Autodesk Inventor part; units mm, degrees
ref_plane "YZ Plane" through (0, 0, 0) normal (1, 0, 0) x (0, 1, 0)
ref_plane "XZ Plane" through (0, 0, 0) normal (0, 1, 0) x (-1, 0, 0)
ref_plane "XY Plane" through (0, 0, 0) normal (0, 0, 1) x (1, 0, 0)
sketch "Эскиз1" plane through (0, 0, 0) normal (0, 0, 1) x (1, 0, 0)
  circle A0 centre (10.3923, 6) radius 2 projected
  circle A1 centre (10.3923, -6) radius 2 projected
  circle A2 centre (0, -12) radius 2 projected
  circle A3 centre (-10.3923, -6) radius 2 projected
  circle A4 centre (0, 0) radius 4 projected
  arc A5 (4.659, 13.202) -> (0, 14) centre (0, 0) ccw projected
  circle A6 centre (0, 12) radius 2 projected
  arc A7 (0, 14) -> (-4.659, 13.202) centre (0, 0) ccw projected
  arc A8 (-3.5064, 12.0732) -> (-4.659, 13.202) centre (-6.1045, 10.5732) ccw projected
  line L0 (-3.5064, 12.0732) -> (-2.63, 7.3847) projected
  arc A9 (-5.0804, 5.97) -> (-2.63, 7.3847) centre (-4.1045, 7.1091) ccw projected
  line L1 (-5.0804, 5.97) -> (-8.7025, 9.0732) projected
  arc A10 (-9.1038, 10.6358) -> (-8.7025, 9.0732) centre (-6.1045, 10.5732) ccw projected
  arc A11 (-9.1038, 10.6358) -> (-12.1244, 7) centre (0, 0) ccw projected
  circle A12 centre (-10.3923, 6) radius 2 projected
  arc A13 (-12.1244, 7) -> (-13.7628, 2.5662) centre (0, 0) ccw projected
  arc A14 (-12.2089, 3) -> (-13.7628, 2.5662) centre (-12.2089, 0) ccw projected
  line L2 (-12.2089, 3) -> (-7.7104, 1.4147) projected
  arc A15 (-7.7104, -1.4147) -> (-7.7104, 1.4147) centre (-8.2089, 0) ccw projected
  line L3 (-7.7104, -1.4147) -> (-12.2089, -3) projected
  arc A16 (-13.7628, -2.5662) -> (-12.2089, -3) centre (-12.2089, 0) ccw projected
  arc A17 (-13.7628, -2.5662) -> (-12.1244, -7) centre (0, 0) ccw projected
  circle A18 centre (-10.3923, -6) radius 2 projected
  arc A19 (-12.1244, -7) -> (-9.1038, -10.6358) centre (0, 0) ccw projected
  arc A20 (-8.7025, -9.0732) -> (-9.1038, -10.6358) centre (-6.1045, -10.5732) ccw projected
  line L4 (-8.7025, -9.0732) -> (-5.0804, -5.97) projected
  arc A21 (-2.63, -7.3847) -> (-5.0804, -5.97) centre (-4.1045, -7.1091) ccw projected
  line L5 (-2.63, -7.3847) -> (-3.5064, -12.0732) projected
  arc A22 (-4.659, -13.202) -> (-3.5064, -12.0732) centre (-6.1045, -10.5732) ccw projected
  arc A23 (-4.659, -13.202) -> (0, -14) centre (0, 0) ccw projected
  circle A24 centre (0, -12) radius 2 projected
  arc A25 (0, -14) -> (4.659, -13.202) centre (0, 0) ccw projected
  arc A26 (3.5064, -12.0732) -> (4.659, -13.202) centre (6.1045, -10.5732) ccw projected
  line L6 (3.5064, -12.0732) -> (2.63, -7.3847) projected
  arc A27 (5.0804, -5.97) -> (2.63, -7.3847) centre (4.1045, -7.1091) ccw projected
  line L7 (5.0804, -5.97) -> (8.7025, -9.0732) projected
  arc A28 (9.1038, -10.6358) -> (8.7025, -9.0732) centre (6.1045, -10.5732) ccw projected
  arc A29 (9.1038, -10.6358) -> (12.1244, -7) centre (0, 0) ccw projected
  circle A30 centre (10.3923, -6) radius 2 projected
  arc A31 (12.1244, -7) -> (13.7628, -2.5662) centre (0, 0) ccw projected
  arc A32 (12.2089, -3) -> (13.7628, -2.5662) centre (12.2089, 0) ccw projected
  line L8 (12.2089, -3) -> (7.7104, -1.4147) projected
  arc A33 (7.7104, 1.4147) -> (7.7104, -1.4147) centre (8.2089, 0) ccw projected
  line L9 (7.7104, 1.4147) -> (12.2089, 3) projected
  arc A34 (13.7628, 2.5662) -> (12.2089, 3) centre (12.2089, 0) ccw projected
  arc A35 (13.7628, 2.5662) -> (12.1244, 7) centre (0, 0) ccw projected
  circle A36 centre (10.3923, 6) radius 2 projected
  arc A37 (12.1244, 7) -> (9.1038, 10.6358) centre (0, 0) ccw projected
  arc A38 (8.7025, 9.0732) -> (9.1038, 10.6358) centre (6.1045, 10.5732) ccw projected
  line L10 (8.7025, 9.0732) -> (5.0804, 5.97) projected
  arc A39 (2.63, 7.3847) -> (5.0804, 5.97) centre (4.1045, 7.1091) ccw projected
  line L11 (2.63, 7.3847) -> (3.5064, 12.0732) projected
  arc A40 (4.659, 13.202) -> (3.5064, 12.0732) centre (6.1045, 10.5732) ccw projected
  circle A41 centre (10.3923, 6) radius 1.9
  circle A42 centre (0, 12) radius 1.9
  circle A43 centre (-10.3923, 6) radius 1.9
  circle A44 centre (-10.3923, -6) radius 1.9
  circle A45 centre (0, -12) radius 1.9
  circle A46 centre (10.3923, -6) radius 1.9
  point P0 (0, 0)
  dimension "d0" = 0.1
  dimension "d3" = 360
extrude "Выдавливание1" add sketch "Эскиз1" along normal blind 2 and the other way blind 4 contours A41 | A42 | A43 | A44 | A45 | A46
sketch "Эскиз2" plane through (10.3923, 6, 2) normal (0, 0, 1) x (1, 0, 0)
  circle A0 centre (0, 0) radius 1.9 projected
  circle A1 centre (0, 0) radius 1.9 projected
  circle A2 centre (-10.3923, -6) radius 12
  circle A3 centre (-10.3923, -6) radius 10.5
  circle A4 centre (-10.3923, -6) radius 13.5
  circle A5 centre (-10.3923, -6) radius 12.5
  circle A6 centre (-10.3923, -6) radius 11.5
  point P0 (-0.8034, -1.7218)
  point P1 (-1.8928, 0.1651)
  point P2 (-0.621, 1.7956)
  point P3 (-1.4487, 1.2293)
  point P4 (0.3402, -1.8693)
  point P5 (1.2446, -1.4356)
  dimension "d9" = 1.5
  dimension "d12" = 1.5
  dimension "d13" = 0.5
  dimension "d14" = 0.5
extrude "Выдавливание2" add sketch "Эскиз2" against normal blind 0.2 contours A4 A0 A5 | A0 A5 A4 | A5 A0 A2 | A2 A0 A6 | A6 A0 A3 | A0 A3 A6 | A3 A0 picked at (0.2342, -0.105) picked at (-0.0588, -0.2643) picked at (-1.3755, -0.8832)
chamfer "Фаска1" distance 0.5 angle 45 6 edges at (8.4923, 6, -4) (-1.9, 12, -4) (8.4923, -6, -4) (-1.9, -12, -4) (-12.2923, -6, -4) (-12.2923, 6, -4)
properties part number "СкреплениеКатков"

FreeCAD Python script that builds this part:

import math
import FreeCAD as App
import Part
import Sketcher
from FreeCAD import Vector
Q = App.Units.Quantity


def edges_at(feature, points):
    """Names of the edges that pass closest to the given points."""
    edges = feature.Shape.Edges
    near = lambda p: min(range(len(edges)), key=lambda i: edges[i].distToShape(Part.Vertex(*p))[0])
    return sorted({f"Edge{near(p) + 1}" for p in points})

doc = App.newDocument("Part")
body = doc.addObject("PartDesign::Body", "Body")
body.AllowCompound = True

# Sketch on XY plane
sketch1 = body.newObject("Sketcher::SketchObject", "Sketch")
sketch1.AttachmentSupport = (doc.getObject("XY_Plane"), [""])
sketch1.MapMode = "FlatFace"
sketch1.addGeometry([
    Part.Circle(Vector(10.3923, 6, 0), Vector(0, 0, 1), 1.9),  # 0
    Part.Circle(Vector(0, 12, 0), Vector(0, 0, 1), 1.9),  # 1
    Part.Circle(Vector(-10.3923, 6, 0), Vector(0, 0, 1), 1.9),  # 2
    Part.Circle(Vector(-10.3923, -6, 0), Vector(0, 0, 1), 1.9),  # 3
    Part.Circle(Vector(0, -12, 0), Vector(0, 0, 1), 1.9),  # 4
    Part.Circle(Vector(10.3923, -6, 0), Vector(0, 0, 1), 1.9),  # 5
], False)
sketch1.addConstraint([
    Sketcher.Constraint("Equal", 0, 1),
    Sketcher.Constraint("Equal", 1, 2),
    Sketcher.Constraint("Equal", 2, 3),
    Sketcher.Constraint("Equal", 3, 4),
    Sketcher.Constraint("Equal", 4, 5),
    Sketcher.Constraint("Symmetric", 0, 3, 3, 3, -1, 1),
    Sketcher.Constraint("Symmetric", 1, 3, 4, 3, -1, 1),
    Sketcher.Constraint("Symmetric", 2, 3, 5, 3, -1, 1),
    Sketcher.Constraint("Symmetric", 0, 3, 2, 3, -2),
    Sketcher.Constraint("PointOnObject", 1, 3, -2),
    Sketcher.Constraint("Diameter", 0, Q("3.8 mm")),
    Sketcher.Constraint("DistanceY", -1, 1, 0, 3, Q("6 mm")),
    Sketcher.Constraint("DistanceY", -1, 1, 1, 3, Q("12 mm")),
    Sketcher.Constraint("DistanceX", -1, 1, 0, 3, Q("10.3923 mm")),
])
pad1 = body.newObject("PartDesign::Pad", "Pad")
pad1.Profile = sketch1
pad1.Type = "TwoLengths"
pad1.Length = 2
pad1.Length2 = 4

# Sketch on XY plane
sketch2 = body.newObject("Sketcher::SketchObject", "Sketch001")
sketch2.AttachmentSupport = (doc.getObject("XY_Plane"), [""])
sketch2.MapMode = "FlatFace"
sketch2.AttachmentOffset = App.Placement(Vector(0, 0, 2), App.Rotation())
sketch2.addGeometry([
    Part.Circle(Vector(0, 0, 0), Vector(0, 0, 1), 13.5),  # 0
    Part.ArcOfCircle(Part.Circle(Vector(10.3923, 6, 0), Vector(0, 0, 1), 1.9), math.radians(109.077808), math.radians(139.684479)),  # 1
    Part.ArcOfCircle(Part.Circle(Vector(0, 0, 0), Vector(0, 0, 1), 11.5), math.radians(38.949427), math.radians(381.050596)),  # 2
    Part.ArcOfCircle(Part.Circle(Vector(10.3923, 6, 0), Vector(0, 0, 1), 1.9), math.radians(-79.684456), math.radians(-49.077785)),  # 3
    Part.ArcOfCircle(Part.Circle(Vector(0, 0, 0), Vector(0, 0, 1), 12.5), math.radians(38.583279), math.radians(381.416745)),  # 4
    Part.ArcOfCircle(Part.Circle(Vector(10.3923, 6, 0), Vector(0, 0, 1), 1.9), math.radians(175.014427), math.radians(244.985597)),  # 5
    Part.ArcOfCircle(Part.Circle(Vector(0, 0, 0), Vector(0, 0, 1), 10.5), math.radians(35.955322), math.radians(384.044701)),  # 6
], False)
sketch2.addConstraint([
    Sketcher.Constraint("Coincident", 1, 2, 2, 1),
    Sketcher.Constraint("Coincident", 2, 2, 3, 1),
    Sketcher.Constraint("Coincident", 3, 2, 4, 2),
    Sketcher.Constraint("Coincident", 4, 1, 1, 1),
    Sketcher.Constraint("Coincident", 5, 1, 6, 1),
    Sketcher.Constraint("Coincident", 6, 2, 5, 2),
    Sketcher.Constraint("Coincident", 0, 3, -1, 1),
    Sketcher.Constraint("Coincident", 2, 3, -1, 1),
    Sketcher.Constraint("Coincident", 4, 3, -1, 1),
    Sketcher.Constraint("Coincident", 6, 3, -1, 1),
    Sketcher.Constraint("Coincident", 3, 3, 1, 3),
    Sketcher.Constraint("Coincident", 5, 3, 1, 3),
    Sketcher.Constraint("Equal", 1, 3),
    Sketcher.Constraint("Equal", 3, 5),
    Sketcher.Constraint("Diameter", 0, Q("27 mm")),
    Sketcher.Constraint("Radius", 1, Q("1.9 mm")),
    Sketcher.Constraint("Radius", 2, Q("11.5 mm")),
    Sketcher.Constraint("Radius", 4, Q("12.5 mm")),
    Sketcher.Constraint("Radius", 6, Q("10.5 mm")),
    Sketcher.Constraint("DistanceY", -1, 1, 1, 3, Q("6 mm")),
    Sketcher.Constraint("DistanceY", -1, 1, 5, 1, Q("6.165 mm")),
])
pad2 = body.newObject("PartDesign::Pad", "Pad001")
pad2.Profile = sketch2
pad2.Length = 0.2
pad2.Reversed = True
doc.recompute()

chamfer = body.newObject("PartDesign::Chamfer", "Chamfer")
chamfer.Base = (pad2, edges_at(pad2, [
    (8.492, 6, -4),
    (-1.9, 12, -4),
    (8.492, -6, -4),
    (-1.9, -12, -4),
    (-12.292, -6, -4),
    (-12.292, 6, -4),
]))
chamfer.Size = 0.5

doc.recompute()
